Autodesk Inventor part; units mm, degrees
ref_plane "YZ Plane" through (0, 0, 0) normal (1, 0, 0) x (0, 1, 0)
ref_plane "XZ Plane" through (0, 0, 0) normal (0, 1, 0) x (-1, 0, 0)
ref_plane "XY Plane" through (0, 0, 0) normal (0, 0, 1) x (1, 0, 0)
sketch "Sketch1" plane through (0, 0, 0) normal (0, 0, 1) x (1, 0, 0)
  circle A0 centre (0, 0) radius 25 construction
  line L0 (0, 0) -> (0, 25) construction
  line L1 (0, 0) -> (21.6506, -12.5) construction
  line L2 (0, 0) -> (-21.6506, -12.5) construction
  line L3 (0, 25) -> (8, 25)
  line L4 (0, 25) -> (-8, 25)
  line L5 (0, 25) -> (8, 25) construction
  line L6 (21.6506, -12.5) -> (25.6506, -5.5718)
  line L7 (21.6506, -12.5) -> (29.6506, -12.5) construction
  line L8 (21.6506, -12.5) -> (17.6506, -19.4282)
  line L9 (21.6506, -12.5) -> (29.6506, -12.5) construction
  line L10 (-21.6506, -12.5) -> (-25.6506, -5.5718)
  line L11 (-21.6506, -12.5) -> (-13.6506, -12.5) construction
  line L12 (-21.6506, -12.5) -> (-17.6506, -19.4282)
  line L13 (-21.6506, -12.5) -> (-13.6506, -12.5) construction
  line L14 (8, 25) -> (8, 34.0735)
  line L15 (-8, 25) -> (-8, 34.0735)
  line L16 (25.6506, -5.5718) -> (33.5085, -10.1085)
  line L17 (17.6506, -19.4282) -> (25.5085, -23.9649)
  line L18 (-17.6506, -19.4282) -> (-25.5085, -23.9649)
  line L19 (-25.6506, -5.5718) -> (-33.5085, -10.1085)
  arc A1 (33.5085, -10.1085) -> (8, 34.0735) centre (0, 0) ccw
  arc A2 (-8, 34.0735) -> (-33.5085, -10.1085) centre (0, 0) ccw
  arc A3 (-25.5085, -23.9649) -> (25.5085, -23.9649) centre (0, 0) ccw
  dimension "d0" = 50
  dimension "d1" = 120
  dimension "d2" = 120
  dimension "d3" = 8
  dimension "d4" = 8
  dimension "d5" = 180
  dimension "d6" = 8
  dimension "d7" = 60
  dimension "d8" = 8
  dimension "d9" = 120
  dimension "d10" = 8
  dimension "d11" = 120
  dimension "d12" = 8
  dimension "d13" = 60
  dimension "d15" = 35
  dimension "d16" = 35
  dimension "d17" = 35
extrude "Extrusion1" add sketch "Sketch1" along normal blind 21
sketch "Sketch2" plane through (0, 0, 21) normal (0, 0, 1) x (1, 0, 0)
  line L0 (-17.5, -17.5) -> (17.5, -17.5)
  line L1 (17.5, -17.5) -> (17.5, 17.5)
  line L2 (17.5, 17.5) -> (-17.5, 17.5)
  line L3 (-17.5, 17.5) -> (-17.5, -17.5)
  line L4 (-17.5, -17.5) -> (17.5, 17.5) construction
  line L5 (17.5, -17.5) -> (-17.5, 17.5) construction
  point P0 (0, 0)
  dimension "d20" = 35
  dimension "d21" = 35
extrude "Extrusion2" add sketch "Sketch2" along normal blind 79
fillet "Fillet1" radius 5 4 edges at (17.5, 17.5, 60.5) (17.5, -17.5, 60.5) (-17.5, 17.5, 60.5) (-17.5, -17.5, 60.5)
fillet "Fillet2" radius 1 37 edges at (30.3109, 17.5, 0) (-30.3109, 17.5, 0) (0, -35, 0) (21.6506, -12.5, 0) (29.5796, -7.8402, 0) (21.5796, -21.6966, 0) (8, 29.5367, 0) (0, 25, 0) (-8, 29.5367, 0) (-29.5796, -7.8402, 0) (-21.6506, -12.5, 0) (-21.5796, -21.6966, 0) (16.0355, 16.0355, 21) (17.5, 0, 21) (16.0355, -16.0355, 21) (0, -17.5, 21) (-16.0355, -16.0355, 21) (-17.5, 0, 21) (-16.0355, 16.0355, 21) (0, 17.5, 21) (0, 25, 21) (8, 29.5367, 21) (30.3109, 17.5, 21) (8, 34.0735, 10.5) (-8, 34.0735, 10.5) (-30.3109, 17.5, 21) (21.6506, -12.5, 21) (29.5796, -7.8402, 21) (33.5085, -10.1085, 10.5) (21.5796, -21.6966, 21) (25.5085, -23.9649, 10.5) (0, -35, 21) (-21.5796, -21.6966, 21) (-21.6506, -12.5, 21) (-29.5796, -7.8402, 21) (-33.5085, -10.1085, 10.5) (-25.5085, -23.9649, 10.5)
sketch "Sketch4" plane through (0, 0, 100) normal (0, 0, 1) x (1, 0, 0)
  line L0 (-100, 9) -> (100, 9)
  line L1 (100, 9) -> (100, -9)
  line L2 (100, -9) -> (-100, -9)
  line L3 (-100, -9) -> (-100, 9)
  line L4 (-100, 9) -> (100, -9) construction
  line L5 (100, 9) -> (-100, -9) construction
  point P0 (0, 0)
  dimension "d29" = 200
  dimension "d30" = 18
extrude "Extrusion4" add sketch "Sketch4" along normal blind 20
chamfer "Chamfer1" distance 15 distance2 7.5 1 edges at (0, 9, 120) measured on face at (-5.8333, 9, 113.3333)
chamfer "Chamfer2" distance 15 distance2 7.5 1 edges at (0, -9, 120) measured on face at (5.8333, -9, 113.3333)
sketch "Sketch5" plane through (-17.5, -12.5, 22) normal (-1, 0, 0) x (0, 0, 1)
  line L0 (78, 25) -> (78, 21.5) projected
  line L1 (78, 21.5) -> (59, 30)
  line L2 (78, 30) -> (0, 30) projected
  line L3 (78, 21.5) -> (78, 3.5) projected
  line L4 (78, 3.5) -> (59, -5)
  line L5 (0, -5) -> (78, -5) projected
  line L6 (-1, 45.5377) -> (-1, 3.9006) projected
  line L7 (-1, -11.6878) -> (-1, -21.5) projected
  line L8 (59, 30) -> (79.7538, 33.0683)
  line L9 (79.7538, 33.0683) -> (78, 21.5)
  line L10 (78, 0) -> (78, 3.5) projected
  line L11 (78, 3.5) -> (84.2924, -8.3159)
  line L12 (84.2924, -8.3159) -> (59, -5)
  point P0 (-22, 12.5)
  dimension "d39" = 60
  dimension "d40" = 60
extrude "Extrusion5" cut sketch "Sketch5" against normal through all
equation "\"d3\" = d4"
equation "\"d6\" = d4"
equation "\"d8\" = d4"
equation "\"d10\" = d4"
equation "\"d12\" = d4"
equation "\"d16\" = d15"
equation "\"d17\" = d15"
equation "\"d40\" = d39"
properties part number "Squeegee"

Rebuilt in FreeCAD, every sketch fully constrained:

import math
import FreeCAD as App
import Part
import Sketcher
Q = App.Units.Quantity


def edges_at(feature, points):
    """Names of the edges that pass closest to the given points."""
    edges = feature.Shape.Edges
    near = lambda p: min(range(len(edges)), key=lambda i: edges[i].distToShape(Part.Vertex(*p))[0])
    return sorted({f"Edge{near(p) + 1}" for p in points})

doc = App.newDocument("Part")
body = doc.addObject("PartDesign::Body", "Body")

# Sketch on XY plane
sketch1 = doc.addObject("Sketcher::SketchObject", "Sketch")
body.addObject(sketch1)
sketch1.AttachmentSupport = (doc.XY_Plane, [""])
sketch1.MapMode = "FlatFace"
sketch1.addGeometry([
    Part.LineSegment(App.Vector(8, 25, 0), App.Vector(-8, 25, 0)),  # 0
    Part.LineSegment(App.Vector(-8, 25, 0), App.Vector(-8, 34, 0)),  # 1
    Part.ArcOfCircle(Part.Circle(App.Vector(0, 0, 0), App.Vector(0, 0, 1), 35), math.radians(103), math.radians(197)),  # 2
    Part.LineSegment(App.Vector(-34, -10, 0), App.Vector(-26, -6, 0)),  # 3
    Part.LineSegment(App.Vector(-26, -6, 0), App.Vector(-18, -19, 0)),  # 4
    Part.LineSegment(App.Vector(-18, -19, 0), App.Vector(-26, -24, 0)),  # 5
    Part.ArcOfCircle(Part.Circle(App.Vector(0, 0, 0), App.Vector(0, 0, 1), 35), math.radians(-137), math.radians(-43)),  # 6
    Part.LineSegment(App.Vector(26, -24, 0), App.Vector(18, -19, 0)),  # 7
    Part.LineSegment(App.Vector(18, -19, 0), App.Vector(26, -6, 0)),  # 8
    Part.LineSegment(App.Vector(26, -6, 0), App.Vector(34, -10, 0)),  # 9
    Part.ArcOfCircle(Part.Circle(App.Vector(0, 0, 0), App.Vector(0, 0, 1), 35), math.radians(-17), math.radians(77)),  # 10
    Part.LineSegment(App.Vector(8, 34, 0), App.Vector(8, 25, 0)),  # 11
], False)
sketch1.addConstraint([
    Sketcher.Constraint("Coincident", 0, 2, 1, 1),
    Sketcher.Constraint("Coincident", 1, 2, 2, 1),
    Sketcher.Constraint("Coincident", 2, 2, 3, 1),
    Sketcher.Constraint("Coincident", 3, 2, 4, 1),
    Sketcher.Constraint("Coincident", 4, 2, 5, 1),
    Sketcher.Constraint("Coincident", 5, 2, 6, 1),
    Sketcher.Constraint("Coincident", 6, 2, 7, 1),
    Sketcher.Constraint("Coincident", 7, 2, 8, 1),
    Sketcher.Constraint("Coincident", 8, 2, 9, 1),
    Sketcher.Constraint("Coincident", 9, 2, 10, 1),
    Sketcher.Constraint("Coincident", 10, 2, 11, 1),
    Sketcher.Constraint("Coincident", 11, 2, 0, 1),
    Sketcher.Constraint("Horizontal", 0),
    Sketcher.Constraint("Vertical", 1),
    Sketcher.Constraint("Vertical", 11),
    Sketcher.Constraint("Coincident", 2, 3, -1, 1),
    Sketcher.Constraint("Coincident", 6, 3, -1, 1),
    Sketcher.Constraint("Coincident", 10, 3, -1, 1),
    Sketcher.Constraint("Equal", 2, 6),
    Sketcher.Constraint("Equal", 6, 10),
    Sketcher.Constraint("Symmetric", 4, 2, 7, 2, -2),
    Sketcher.Constraint("Symmetric", 3, 2, 8, 2, -2),
    Sketcher.Constraint("Perpendicular", 3, 4),
    Sketcher.Constraint("Perpendicular", 4, 5),
    Sketcher.Constraint("Perpendicular", 7, 8),
    Sketcher.Constraint("Perpendicular", 8, 9),
    Sketcher.Constraint("Horizontal", 1, 2, 10, 2),
    Sketcher.Constraint("Equal", 3, 5),
    Sketcher.Constraint("Radius", 2, Q("35 mm")),
    Sketcher.Constraint("Angle", 4, Q("-60 deg")),
    Sketcher.Constraint("DistanceX", 0, 2, -1, 1, Q("8 mm")),
    Sketcher.Constraint("DistanceX", 3, 2, 4, 2, Q("8 mm")),
    Sketcher.Constraint("DistanceY", -1, 1, 0, 2, Q("25 mm")),
    Sketcher.Constraint("DistanceX", 2, 2, 3, 2, Q("7.858 mm")),
])
pad1 = doc.addObject("PartDesign::Pad", "Pad")
body.addObject(pad1)
pad1.Profile = sketch1
pad1.Length = 21

# Sketch on XY plane
sketch2 = doc.addObject("Sketcher::SketchObject", "Sketch001")
body.addObject(sketch2)
sketch2.AttachmentSupport = (doc.XY_Plane, [""])
sketch2.MapMode = "FlatFace"
sketch2.AttachmentOffset = App.Placement(App.Vector(0, 0, 21), App.Rotation())
sketch2.addGeometry([
    Part.LineSegment(App.Vector(-18, 18, 0), App.Vector(-18, -18, 0)),
    Part.LineSegment(App.Vector(-18, -18, 0), App.Vector(18, -18, 0)),
    Part.LineSegment(App.Vector(18, -18, 0), App.Vector(18, 18, 0)),
    Part.LineSegment(App.Vector(18, 18, 0), App.Vector(-18, 18, 0)),
], False)
sketch2.addConstraint([
    Sketcher.Constraint("Coincident", 0, 2, 1, 1),
    Sketcher.Constraint("Coincident", 1, 2, 2, 1),
    Sketcher.Constraint("Coincident", 2, 2, 3, 1),
    Sketcher.Constraint("Coincident", 3, 2, 0, 1),
    Sketcher.Constraint("Vertical", 0),
    Sketcher.Constraint("Horizontal", 1),
    Sketcher.Constraint("Vertical", 2),
    Sketcher.Constraint("Horizontal", 3),
    Sketcher.Constraint("Symmetric", 0, 2, 2, 2, -1, 1),
    Sketcher.Constraint("Equal", 3, 0),
    Sketcher.Constraint("DistanceX", 1, 1, 1, 2, Q("35 mm")),
])
pad2 = doc.addObject("PartDesign::Pad", "Pad001")
body.addObject(pad2)
pad2.Profile = sketch2
pad2.Length = 79
doc.recompute()

fillet = doc.addObject("PartDesign::Fillet", "Fillet")
body.addObject(fillet)
fillet.Base = (pad2, edges_at(pad2, [
    (17.5, 17.5, 60.5),
    (17.5, -17.5, 60.5),
    (-17.5, 17.5, 60.5),
    (-17.5, -17.5, 60.5),
]))
fillet.Radius = 5
doc.recompute()

fillet2 = doc.addObject("PartDesign::Fillet", "Fillet001")
body.addObject(fillet2)
fillet2.Base = (fillet, edges_at(fillet, [
    (30.311, 17.5, 0),
    (-30.311, 17.5, 0),
    (0, -35, 0),
    (21.651, -12.5, 0),
    (29.58, -7.84, 0),
    (21.58, -21.697, 0),
    (8, 29.537, 0),
    (0, 25, 0),
    (-8, 29.537, 0),
    (-29.58, -7.84, 0),
    (-21.651, -12.5, 0),
    (-21.58, -21.697, 0),
    (16.035, 16.035, 21),
    (17.5, 0, 21),
    (16.035, -16.035, 21),
    (0, -17.5, 21),
    (-16.035, -16.035, 21),
    (-17.5, 0, 21),
    (-16.035, 16.035, 21),
    (0, 17.5, 21),
    (0, 25, 21),
    (8, 29.537, 21),
    (30.311, 17.5, 21),
    (8, 34.074, 10.5),
    (-8, 34.074, 10.5),
    (-30.311, 17.5, 21),
    (21.651, -12.5, 21),
    (29.58, -7.84, 21),
    (33.508, -10.108, 10.5),
    (21.58, -21.697, 21),
    (25.509, -23.965, 10.5),
    (0, -35, 21),
    (-21.58, -21.697, 21),
    (-21.651, -12.5, 21),
    (-29.58, -7.84, 21),
    (-33.508, -10.108, 10.5),
    (-25.509, -23.965, 10.5),
]))
fillet2.Radius = 1

# Sketch on XY plane
sketch3 = doc.addObject("Sketcher::SketchObject", "Sketch002")
body.addObject(sketch3)
sketch3.AttachmentSupport = (doc.XY_Plane, [""])
sketch3.MapMode = "FlatFace"
sketch3.AttachmentOffset = App.Placement(App.Vector(0, 0, 100), App.Rotation())
sketch3.addGeometry([
    Part.LineSegment(App.Vector(100, 9, 0), App.Vector(-100, 9, 0)),
    Part.LineSegment(App.Vector(-100, 9, 0), App.Vector(-100, -9, 0)),
    Part.LineSegment(App.Vector(-100, -9, 0), App.Vector(100, -9, 0)),
    Part.LineSegment(App.Vector(100, -9, 0), App.Vector(100, 9, 0)),
], False)
sketch3.addConstraint([
    Sketcher.Constraint("Coincident", 0, 2, 1, 1),
    Sketcher.Constraint("Coincident", 1, 2, 2, 1),
    Sketcher.Constraint("Coincident", 2, 2, 3, 1),
    Sketcher.Constraint("Coincident", 3, 2, 0, 1),
    Sketcher.Constraint("Horizontal", 0),
    Sketcher.Constraint("Vertical", 1),
    Sketcher.Constraint("Horizontal", 2),
    Sketcher.Constraint("Vertical", 3),
    Sketcher.Constraint("Symmetric", 0, 2, 2, 2, -1, 1),
    Sketcher.Constraint("DistanceX", 0, 2, 0, 1, Q("200 mm")),
    Sketcher.Constraint("DistanceY", 1, 2, 1, 1, Q("18 mm")),
])
pad3 = doc.addObject("PartDesign::Pad", "Pad002")
body.addObject(pad3)
pad3.Profile = sketch3
pad3.Length = 20
doc.recompute()

chamfer = doc.addObject("PartDesign::Chamfer", "Chamfer")
body.addObject(chamfer)
chamfer.Base = (pad3, edges_at(pad3, [(0, 9, 120)]))
chamfer.ChamferType = "Two distances"
chamfer.Size = 15
chamfer.Size2 = 7.5
doc.recompute()

chamfer2 = doc.addObject("PartDesign::Chamfer", "Chamfer001")
body.addObject(chamfer2)
chamfer2.Base = (chamfer, edges_at(chamfer, [(0, -9, 120)]))
chamfer2.ChamferType = "Two distances"
chamfer2.Size = 15
chamfer2.Size2 = 7.5
chamfer2.FlipDirection = True

# Sketch on YZ plane
sketch4 = doc.addObject("Sketcher::SketchObject", "Sketch003")
body.addObject(sketch4)
sketch4.AttachmentSupport = (doc.YZ_Plane, [""])
sketch4.MapMode = "FlatFace"
sketch4.AttachmentOffset = App.Placement(App.Vector(0, 0, -17.5), App.Rotation())
sketch4.addGeometry([
    Part.LineSegment(App.Vector(-21, 106, 0), App.Vector(-9, 100, 0)),  # 0
    Part.LineSegment(App.Vector(-9, 100, 0), App.Vector(-18, 81, 0)),  # 1
    Part.LineSegment(App.Vector(-18, 81, 0), App.Vector(-21, 106, 0)),  # 2
    Part.LineSegment(App.Vector(18, 81, 0), App.Vector(9, 100, 0)),  # 3
    Part.LineSegment(App.Vector(9, 100, 0), App.Vector(21, 102, 0)),  # 4
    Part.LineSegment(App.Vector(21, 102, 0), App.Vector(18, 81, 0)),  # 5
], False)
sketch4.addConstraint([
    Sketcher.Constraint("Coincident", 0, 2, 1, 1),
    Sketcher.Constraint("Coincident", 1, 2, 2, 1),
    Sketcher.Constraint("Coincident", 2, 2, 0, 1),
    Sketcher.Constraint("Coincident", 3, 2, 4, 1),
    Sketcher.Constraint("Coincident", 4, 2, 5, 1),
    Sketcher.Constraint("Coincident", 5, 2, 3, 1),
    Sketcher.Constraint("Symmetric", 0, 2, 3, 2, -2),
    Sketcher.Constraint("Symmetric", 1, 2, 5, 2, -2),
    Sketcher.Constraint("DistanceX", 0, 2, -1, 1, Q("9 mm")),
    Sketcher.Constraint("DistanceY", -1, 1, 0, 2, Q("100 mm")),
    Sketcher.Constraint("DistanceY", -1, 1, 1, 2, Q("81 mm")),
    Sketcher.Constraint("DistanceX", 1, 2, 5, 2, Q("35 mm")),
    Sketcher.Constraint("Angle", 2, Q("97.469 deg")),
    Sketcher.Constraint("Angle", 4, Q("8.6206 deg")),
    Sketcher.Constraint("Angle", 5, Q("-98.4098 deg")),
    Sketcher.Constraint("Distance", 0, Q("13.387 mm")),
])
pocket1 = doc.addObject("PartDesign::Pocket", "Pocket")
body.addObject(pocket1)
pocket1.Profile = sketch4
pocket1.Type = "ThroughAll"
pocket1.Reversed = True

doc.recompute()
